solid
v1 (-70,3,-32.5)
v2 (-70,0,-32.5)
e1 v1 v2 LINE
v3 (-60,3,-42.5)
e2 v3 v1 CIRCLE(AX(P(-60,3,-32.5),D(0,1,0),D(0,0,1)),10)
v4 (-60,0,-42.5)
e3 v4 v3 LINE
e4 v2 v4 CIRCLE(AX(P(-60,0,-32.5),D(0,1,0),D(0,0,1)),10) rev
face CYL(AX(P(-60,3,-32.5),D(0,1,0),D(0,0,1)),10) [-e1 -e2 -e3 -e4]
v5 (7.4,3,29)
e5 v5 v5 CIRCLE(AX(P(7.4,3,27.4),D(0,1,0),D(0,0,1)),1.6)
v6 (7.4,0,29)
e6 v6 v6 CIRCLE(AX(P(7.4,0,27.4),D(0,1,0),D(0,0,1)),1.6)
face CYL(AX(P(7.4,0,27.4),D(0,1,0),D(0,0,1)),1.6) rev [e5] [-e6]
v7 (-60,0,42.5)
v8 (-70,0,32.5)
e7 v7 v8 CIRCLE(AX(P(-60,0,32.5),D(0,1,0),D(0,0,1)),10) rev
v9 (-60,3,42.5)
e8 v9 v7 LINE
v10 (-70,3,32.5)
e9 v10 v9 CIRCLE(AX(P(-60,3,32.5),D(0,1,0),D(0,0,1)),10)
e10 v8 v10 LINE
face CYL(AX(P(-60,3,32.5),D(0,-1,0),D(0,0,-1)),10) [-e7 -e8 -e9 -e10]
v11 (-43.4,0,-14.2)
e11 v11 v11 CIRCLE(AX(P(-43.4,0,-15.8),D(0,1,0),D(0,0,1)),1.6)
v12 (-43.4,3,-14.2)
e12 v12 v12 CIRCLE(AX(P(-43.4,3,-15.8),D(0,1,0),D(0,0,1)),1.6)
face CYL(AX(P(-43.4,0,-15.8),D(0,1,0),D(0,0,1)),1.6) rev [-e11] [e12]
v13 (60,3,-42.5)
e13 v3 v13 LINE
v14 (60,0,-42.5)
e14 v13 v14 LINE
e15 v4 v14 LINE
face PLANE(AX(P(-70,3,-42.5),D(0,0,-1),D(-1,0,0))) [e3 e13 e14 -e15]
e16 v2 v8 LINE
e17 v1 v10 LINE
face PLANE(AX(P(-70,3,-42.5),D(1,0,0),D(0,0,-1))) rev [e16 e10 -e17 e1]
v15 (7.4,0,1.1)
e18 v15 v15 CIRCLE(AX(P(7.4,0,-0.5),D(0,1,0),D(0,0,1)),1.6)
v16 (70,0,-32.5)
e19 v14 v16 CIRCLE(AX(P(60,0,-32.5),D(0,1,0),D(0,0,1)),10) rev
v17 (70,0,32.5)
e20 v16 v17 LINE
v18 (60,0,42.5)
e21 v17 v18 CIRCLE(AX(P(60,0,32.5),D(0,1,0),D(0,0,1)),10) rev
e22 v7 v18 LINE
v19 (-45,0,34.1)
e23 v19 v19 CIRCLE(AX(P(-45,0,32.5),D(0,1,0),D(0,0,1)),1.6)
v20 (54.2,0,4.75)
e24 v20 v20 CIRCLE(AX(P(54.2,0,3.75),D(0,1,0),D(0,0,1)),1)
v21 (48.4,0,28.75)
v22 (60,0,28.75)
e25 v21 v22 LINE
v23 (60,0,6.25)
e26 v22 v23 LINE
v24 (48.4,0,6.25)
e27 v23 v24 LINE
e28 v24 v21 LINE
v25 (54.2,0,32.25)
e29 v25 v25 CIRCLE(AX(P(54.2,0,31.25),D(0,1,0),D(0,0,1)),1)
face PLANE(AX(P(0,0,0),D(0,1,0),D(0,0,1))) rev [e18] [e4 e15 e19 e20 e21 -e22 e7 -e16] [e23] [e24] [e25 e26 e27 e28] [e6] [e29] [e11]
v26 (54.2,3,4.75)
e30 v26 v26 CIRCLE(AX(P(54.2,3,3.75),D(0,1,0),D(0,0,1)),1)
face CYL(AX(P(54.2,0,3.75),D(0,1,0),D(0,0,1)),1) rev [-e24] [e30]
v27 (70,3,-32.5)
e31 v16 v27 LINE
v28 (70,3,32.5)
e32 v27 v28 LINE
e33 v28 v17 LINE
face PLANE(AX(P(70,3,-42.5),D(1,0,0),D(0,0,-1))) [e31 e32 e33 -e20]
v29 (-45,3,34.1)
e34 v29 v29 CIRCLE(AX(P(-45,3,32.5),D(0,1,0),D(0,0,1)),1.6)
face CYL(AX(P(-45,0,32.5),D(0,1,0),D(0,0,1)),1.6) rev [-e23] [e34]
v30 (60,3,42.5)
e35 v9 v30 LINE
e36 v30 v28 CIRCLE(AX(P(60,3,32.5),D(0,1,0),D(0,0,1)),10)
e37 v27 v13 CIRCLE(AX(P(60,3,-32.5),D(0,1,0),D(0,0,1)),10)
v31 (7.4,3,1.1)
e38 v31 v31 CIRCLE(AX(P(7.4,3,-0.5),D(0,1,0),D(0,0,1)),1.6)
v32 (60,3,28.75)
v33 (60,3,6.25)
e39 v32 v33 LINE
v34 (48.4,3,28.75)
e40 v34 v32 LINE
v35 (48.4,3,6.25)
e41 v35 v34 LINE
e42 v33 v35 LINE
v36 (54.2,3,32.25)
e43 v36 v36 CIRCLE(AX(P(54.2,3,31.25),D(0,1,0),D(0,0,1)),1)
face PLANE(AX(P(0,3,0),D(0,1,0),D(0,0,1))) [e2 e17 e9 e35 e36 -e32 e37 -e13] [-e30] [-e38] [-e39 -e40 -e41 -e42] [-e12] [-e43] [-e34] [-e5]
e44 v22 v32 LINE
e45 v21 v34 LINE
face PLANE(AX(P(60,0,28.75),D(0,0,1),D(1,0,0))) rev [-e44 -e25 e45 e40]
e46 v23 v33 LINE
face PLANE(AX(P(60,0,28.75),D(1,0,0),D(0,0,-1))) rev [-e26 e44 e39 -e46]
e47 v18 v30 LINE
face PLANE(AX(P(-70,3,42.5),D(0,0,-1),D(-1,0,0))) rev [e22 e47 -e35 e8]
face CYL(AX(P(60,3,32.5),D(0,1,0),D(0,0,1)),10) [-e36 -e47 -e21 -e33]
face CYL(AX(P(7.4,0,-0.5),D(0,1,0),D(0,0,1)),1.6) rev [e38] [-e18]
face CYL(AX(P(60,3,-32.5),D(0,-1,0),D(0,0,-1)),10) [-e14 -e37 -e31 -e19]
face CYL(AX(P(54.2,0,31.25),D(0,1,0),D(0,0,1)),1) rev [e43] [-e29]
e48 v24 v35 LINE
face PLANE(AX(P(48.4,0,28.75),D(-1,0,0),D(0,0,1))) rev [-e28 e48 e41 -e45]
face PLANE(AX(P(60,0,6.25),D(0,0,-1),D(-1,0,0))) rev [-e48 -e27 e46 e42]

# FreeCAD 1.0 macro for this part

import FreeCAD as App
import Part
import Sketcher
from FreeCAD import Vector
Q = App.Units.Quantity


def edges_at(feature, points):
    """Names of the edges that pass closest to the given points."""
    edges = feature.Shape.Edges
    near = lambda p: min(range(len(edges)), key=lambda i: edges[i].distToShape(Part.Vertex(*p))[0])
    return sorted({f"Edge{near(p) + 1}" for p in points})


def add_polygon(sketch, points):
    """Adds a closed chain of lines whose ends are joined by coincident constraints."""
    first, n = sketch.GeometryCount, len(points)
    for a, b in zip(points, points[1:] + points[:1]):
        sketch.addGeometry(Part.LineSegment(App.Vector(*a, 0), App.Vector(*b, 0)), False)
    for i in range(n):
        sketch.addConstraint(Sketcher.Constraint("Coincident", first + i, 2, first + (i + 1) % n, 1))

doc = App.newDocument("Part")
body = doc.addObject("PartDesign::Body", "Body")

sketch1 = doc.addObject("Sketcher::SketchObject", "Sketch")
body.addObject(sketch1)
sketch1.AttachmentSupport = (doc.XZ_Plane, [""])
sketch1.MapMode = "FlatFace"
add_polygon(sketch1, [(-70, -42), (-70, 42), (70, 42), (70, -42)])
sketch1.addConstraint(Sketcher.Constraint("Vertical", 0))
sketch1.addConstraint(Sketcher.Constraint("Horizontal", 1))
sketch1.addConstraint(Sketcher.Constraint("Vertical", 2))
sketch1.addConstraint(Sketcher.Constraint("Horizontal", 3))
sketch1.addConstraint(Sketcher.Constraint("Symmetric", 0, 2, 2, 2, -1, 1))
sketch1.addConstraint(Sketcher.Constraint("DistanceX", 1, 1, 1, 2, Q("140 mm")))
sketch1.addConstraint(Sketcher.Constraint("DistanceY", 0, 1, 0, 2, Q("85 mm")))
pad1 = doc.addObject("PartDesign::Pad", "Pad")
body.addObject(pad1)
pad1.Profile = sketch1
pad1.Length = 3
pad1.Reversed = True

sketch2 = doc.addObject("Sketcher::SketchObject", "Sketch001")
body.addObject(sketch2)
sketch2.AttachmentSupport = (doc.XZ_Plane, [""])
sketch2.MapMode = "FlatFace"
sketch2.AttachmentOffset = App.Placement(Vector(0, 0, -3), App.Rotation())
sketch2.addGeometry(Part.Circle(Vector(-43.4, -15.8, 0), Vector(0, 0, 1), 1.6), False)
sketch2.addGeometry(Part.Circle(Vector(7.4, -0.5, 0), Vector(0, 0, 1), 1.6), False)
sketch2.addGeometry(Part.Circle(Vector(-45, 32.5, 0), Vector(0, 0, 1), 1.6), False)
sketch2.addGeometry(Part.Circle(Vector(7.4, 27.4, 0), Vector(0, 0, 1), 1.6), False)
sketch2.addConstraint(Sketcher.Constraint("Equal", 0, 1))
sketch2.addConstraint(Sketcher.Constraint("Equal", 1, 2))
sketch2.addConstraint(Sketcher.Constraint("Equal", 2, 3))
sketch2.addConstraint(Sketcher.Constraint("Vertical", 1, 3, 3, 3))
sketch2.addConstraint(Sketcher.Constraint("Diameter", 0, Q("3.2 mm")))
sketch2.addConstraint(Sketcher.Constraint("DistanceX", 2, 3, -1, 1, Q("45 mm")))
sketch2.addConstraint(Sketcher.Constraint("DistanceY", 1, 3, 2, 3, Q("33 mm")))
sketch2.addConstraint(Sketcher.Constraint("DistanceX", 0, 3, -1, 1, Q("43.4 mm")))
sketch2.addConstraint(Sketcher.Constraint("DistanceY", 0, 3, -1, 1, Q("15.8 mm")))
sketch2.addConstraint(Sketcher.Constraint("DistanceX", -1, 1, 1, 3, Q("7.4 mm")))
sketch2.addConstraint(Sketcher.Constraint("DistanceY", 1, 3, -1, 1, Q("0.5 mm")))
sketch2.addConstraint(Sketcher.Constraint("DistanceY", -1, 1, 3, 3, Q("27.4 mm")))
pocket1 = doc.addObject("PartDesign::Pocket", "Pocket")
body.addObject(pocket1)
pocket1.Profile = sketch2
pocket1.Length = 3
pocket1.Reversed = True
doc.recompute()

fillet = doc.addObject("PartDesign::Fillet", "Fillet")
body.addObject(fillet)
fillet.Base = (pocket1, edges_at(pocket1, [(-70, 1.5, 42.5)]))
fillet.Radius = 10
doc.recompute()

fillet2 = doc.addObject("PartDesign::Fillet", "Fillet001")
body.addObject(fillet2)
fillet2.Base = (fillet, edges_at(fillet, [(-70, 1.5, -42.5)]))
fillet2.Radius = 10
doc.recompute()

fillet3 = doc.addObject("PartDesign::Fillet", "Fillet002")
body.addObject(fillet3)
fillet3.Base = (fillet2, edges_at(fillet2, [(70, 1.5, -42.5)]))
fillet3.Radius = 10
doc.recompute()

fillet4 = doc.addObject("PartDesign::Fillet", "Fillet003")
body.addObject(fillet4)
fillet4.Base = (fillet3, edges_at(fillet3, [(70, 1.5, 42.5)]))
fillet4.Radius = 10

sketch3 = doc.addObject("Sketcher::SketchObject", "Sketch002")
body.addObject(sketch3)
sketch3.AttachmentSupport = (doc.XZ_Plane, [""])
sketch3.MapMode = "FlatFace"
sketch3.AttachmentOffset = App.Placement(Vector(0, 0, -3), App.Rotation())
sketch3.addGeometry(Part.Circle(Vector(54.2, 31.2, 0), Vector(0, 0, 1), 1), False)
sketch3.addGeometry(Part.Circle(Vector(54.2, 3.8, 0), Vector(0, 0, 1), 1), False)
add_polygon(sketch3, [(48.4, 6.2), (48.4, 28.8), (60, 28.8), (60, 6.2)])
sketch3.addConstraint(Sketcher.Constraint("Vertical", 2))
sketch3.addConstraint(Sketcher.Constraint("Horizontal", 3))
sketch3.addConstraint(Sketcher.Constraint("Vertical", 4))
sketch3.addConstraint(Sketcher.Constraint("Horizontal", 5))
sketch3.addConstraint(Sketcher.Constraint("Equal", 0, 1))
sketch3.addConstraint(Sketcher.Constraint("Vertical", 0, 3, 1, 3))
sketch3.addConstraint(Sketcher.Constraint("Diameter", 0, Q("2 mm")))
sketch3.addConstraint(Sketcher.Constraint("DistanceX", 3, 1, 3, 2, Q("11.6 mm")))
sketch3.addConstraint(Sketcher.Constraint("DistanceY", 2, 1, 2, 2, Q("22.5 mm")))
sketch3.addConstraint(Sketcher.Constraint("DistanceX", -1, 1, 3, 2, Q("60 mm")))
sketch3.addConstraint(Sketcher.Constraint("DistanceY", 1, 3, 2, 2, Q("25 mm")))
sketch3.addConstraint(Sketcher.Constraint("DistanceY", 4, 2, 0, 3, Q("25 mm")))
sketch3.addConstraint(Sketcher.Constraint("DistanceX", -1, 1, 0, 3, Q("54.2 mm")))
sketch3.addConstraint(Sketcher.Constraint("DistanceY", -1, 1, 0, 3, Q("31.25 mm")))
pocket2 = doc.addObject("PartDesign::Pocket", "Pocket001")
body.addObject(pocket2)
pocket2.Profile = sketch3
pocket2.Length = 3
pocket2.Reversed = True

doc.recompute()
